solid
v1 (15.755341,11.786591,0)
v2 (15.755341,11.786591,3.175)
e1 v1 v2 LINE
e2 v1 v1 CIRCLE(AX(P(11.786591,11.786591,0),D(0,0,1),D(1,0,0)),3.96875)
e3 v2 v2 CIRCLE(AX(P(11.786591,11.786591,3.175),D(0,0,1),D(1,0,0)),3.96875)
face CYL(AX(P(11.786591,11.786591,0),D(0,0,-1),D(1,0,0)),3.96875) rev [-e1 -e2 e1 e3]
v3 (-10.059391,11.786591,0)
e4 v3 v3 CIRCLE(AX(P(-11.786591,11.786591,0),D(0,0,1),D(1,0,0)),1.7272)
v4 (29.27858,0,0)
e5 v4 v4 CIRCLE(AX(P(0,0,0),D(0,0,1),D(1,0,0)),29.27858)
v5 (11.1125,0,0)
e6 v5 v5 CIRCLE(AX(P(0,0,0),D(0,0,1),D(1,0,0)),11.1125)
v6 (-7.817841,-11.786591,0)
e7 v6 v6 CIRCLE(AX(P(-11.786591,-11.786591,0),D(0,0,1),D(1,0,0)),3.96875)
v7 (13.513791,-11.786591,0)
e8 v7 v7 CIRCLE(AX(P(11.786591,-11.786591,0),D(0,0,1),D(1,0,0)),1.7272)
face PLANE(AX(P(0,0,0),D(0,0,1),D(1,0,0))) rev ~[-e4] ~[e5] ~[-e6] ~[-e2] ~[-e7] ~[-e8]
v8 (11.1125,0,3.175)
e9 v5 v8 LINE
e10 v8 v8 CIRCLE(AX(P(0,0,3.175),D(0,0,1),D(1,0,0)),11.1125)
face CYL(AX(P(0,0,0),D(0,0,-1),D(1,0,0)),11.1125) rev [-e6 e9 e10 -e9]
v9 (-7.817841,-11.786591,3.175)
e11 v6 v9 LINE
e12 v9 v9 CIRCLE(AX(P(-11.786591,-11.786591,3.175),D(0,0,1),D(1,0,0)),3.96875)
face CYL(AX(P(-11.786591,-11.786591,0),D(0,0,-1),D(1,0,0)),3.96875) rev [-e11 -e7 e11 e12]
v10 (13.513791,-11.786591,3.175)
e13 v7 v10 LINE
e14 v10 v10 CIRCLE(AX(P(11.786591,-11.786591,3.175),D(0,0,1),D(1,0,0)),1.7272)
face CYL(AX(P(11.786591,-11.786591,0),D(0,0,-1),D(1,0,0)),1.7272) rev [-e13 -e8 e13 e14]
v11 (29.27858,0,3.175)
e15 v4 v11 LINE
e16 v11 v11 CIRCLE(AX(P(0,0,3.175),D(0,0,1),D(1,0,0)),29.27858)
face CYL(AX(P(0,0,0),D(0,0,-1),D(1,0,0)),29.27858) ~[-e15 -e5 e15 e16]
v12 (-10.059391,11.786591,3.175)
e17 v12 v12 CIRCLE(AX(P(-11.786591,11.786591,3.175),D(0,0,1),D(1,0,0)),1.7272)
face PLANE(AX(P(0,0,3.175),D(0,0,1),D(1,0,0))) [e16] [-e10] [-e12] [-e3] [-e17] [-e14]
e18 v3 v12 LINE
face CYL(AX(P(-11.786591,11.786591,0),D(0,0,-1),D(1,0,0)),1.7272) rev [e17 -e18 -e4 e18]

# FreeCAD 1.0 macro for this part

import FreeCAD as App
import Part
import Sketcher
Q = App.Units.Quantity

doc = App.newDocument("Part")
params = doc.addObject("Spreadsheet::Sheet", "Params")
for row, (alias, value) in enumerate([
    ("sketch1_diameter", "0.3125 in"),
    ("sketch1_diameter2", "0.136 in"),
    ("sketch1_diameter3", "0.875 in"),
    ("pad1_length", "0.125 in"),
], start=1):
    params.set(f"A{row}", alias)
    params.set(f"B{row}", "=" + value)
    params.setAlias(f"B{row}", alias)

body = doc.addObject("PartDesign::Body", "Body")

sketch1 = body.newObject("Sketcher::SketchObject", "Sketch")
sketch1.AttachmentSupport = (doc.getObject("XY_Plane"), [""])
sketch1.MapMode = "FlatFace"
sketch1.addGeometry([
    Part.Circle(App.Vector(0, 0, 0), App.Vector(0, 0, 1), 29.3),
    Part.Circle(App.Vector(-11.8, -11.8, 0), App.Vector(0, 0, 1), 4),
    Part.Circle(App.Vector(11.8, -11.8, 0), App.Vector(0, 0, 1), 1.7),
    Part.Circle(App.Vector(-11.8, 11.8, 0), App.Vector(0, 0, 1), 1.7),
    Part.Circle(App.Vector(0, 0, 0), App.Vector(0, 0, 1), 11.1),
    Part.Circle(App.Vector(11.8, 11.8, 0), App.Vector(0, 0, 1), 4),
], False)
sketch1.addConstraint([
    Sketcher.Constraint("Coincident", 0, 3, -1, 1),
    Sketcher.Constraint("Coincident", 4, 3, -1, 1),
    Sketcher.Constraint("Equal", 2, 3),
    Sketcher.Constraint("Equal", 1, 5),
    Sketcher.Constraint("Symmetric", 2, 3, 3, 3, -1, 1),
    Sketcher.Constraint("Symmetric", 1, 3, 5, 3, -1, 1),
    Sketcher.Constraint("Symmetric", 1, 3, 2, 3, -2),
    Sketcher.Constraint("Diameter", 1, Q("0.3125 in")),
    Sketcher.Constraint("Diameter", 2, Q("0.136 in")),
    Sketcher.Constraint("Diameter", 4, Q("0.875 in")),
    Sketcher.Constraint("Diameter", 0, Q("2.3054 in")),
    Sketcher.Constraint("DistanceX", 1, 3, -1, 1, 11.786591),
    Sketcher.Constraint("DistanceY", 1, 3, -1, 1, 11.786591),
])
sketch1.setExpression("Constraints[7]", "Params.sketch1_diameter")
sketch1.setExpression("Constraints[8]", "Params.sketch1_diameter2")
sketch1.setExpression("Constraints[9]", "Params.sketch1_diameter3")
pad1 = body.newObject("PartDesign::Pad", "Pad")
pad1.Profile = sketch1
pad1.setExpression("Length", "Params.pad1_length")

doc.recompute()
